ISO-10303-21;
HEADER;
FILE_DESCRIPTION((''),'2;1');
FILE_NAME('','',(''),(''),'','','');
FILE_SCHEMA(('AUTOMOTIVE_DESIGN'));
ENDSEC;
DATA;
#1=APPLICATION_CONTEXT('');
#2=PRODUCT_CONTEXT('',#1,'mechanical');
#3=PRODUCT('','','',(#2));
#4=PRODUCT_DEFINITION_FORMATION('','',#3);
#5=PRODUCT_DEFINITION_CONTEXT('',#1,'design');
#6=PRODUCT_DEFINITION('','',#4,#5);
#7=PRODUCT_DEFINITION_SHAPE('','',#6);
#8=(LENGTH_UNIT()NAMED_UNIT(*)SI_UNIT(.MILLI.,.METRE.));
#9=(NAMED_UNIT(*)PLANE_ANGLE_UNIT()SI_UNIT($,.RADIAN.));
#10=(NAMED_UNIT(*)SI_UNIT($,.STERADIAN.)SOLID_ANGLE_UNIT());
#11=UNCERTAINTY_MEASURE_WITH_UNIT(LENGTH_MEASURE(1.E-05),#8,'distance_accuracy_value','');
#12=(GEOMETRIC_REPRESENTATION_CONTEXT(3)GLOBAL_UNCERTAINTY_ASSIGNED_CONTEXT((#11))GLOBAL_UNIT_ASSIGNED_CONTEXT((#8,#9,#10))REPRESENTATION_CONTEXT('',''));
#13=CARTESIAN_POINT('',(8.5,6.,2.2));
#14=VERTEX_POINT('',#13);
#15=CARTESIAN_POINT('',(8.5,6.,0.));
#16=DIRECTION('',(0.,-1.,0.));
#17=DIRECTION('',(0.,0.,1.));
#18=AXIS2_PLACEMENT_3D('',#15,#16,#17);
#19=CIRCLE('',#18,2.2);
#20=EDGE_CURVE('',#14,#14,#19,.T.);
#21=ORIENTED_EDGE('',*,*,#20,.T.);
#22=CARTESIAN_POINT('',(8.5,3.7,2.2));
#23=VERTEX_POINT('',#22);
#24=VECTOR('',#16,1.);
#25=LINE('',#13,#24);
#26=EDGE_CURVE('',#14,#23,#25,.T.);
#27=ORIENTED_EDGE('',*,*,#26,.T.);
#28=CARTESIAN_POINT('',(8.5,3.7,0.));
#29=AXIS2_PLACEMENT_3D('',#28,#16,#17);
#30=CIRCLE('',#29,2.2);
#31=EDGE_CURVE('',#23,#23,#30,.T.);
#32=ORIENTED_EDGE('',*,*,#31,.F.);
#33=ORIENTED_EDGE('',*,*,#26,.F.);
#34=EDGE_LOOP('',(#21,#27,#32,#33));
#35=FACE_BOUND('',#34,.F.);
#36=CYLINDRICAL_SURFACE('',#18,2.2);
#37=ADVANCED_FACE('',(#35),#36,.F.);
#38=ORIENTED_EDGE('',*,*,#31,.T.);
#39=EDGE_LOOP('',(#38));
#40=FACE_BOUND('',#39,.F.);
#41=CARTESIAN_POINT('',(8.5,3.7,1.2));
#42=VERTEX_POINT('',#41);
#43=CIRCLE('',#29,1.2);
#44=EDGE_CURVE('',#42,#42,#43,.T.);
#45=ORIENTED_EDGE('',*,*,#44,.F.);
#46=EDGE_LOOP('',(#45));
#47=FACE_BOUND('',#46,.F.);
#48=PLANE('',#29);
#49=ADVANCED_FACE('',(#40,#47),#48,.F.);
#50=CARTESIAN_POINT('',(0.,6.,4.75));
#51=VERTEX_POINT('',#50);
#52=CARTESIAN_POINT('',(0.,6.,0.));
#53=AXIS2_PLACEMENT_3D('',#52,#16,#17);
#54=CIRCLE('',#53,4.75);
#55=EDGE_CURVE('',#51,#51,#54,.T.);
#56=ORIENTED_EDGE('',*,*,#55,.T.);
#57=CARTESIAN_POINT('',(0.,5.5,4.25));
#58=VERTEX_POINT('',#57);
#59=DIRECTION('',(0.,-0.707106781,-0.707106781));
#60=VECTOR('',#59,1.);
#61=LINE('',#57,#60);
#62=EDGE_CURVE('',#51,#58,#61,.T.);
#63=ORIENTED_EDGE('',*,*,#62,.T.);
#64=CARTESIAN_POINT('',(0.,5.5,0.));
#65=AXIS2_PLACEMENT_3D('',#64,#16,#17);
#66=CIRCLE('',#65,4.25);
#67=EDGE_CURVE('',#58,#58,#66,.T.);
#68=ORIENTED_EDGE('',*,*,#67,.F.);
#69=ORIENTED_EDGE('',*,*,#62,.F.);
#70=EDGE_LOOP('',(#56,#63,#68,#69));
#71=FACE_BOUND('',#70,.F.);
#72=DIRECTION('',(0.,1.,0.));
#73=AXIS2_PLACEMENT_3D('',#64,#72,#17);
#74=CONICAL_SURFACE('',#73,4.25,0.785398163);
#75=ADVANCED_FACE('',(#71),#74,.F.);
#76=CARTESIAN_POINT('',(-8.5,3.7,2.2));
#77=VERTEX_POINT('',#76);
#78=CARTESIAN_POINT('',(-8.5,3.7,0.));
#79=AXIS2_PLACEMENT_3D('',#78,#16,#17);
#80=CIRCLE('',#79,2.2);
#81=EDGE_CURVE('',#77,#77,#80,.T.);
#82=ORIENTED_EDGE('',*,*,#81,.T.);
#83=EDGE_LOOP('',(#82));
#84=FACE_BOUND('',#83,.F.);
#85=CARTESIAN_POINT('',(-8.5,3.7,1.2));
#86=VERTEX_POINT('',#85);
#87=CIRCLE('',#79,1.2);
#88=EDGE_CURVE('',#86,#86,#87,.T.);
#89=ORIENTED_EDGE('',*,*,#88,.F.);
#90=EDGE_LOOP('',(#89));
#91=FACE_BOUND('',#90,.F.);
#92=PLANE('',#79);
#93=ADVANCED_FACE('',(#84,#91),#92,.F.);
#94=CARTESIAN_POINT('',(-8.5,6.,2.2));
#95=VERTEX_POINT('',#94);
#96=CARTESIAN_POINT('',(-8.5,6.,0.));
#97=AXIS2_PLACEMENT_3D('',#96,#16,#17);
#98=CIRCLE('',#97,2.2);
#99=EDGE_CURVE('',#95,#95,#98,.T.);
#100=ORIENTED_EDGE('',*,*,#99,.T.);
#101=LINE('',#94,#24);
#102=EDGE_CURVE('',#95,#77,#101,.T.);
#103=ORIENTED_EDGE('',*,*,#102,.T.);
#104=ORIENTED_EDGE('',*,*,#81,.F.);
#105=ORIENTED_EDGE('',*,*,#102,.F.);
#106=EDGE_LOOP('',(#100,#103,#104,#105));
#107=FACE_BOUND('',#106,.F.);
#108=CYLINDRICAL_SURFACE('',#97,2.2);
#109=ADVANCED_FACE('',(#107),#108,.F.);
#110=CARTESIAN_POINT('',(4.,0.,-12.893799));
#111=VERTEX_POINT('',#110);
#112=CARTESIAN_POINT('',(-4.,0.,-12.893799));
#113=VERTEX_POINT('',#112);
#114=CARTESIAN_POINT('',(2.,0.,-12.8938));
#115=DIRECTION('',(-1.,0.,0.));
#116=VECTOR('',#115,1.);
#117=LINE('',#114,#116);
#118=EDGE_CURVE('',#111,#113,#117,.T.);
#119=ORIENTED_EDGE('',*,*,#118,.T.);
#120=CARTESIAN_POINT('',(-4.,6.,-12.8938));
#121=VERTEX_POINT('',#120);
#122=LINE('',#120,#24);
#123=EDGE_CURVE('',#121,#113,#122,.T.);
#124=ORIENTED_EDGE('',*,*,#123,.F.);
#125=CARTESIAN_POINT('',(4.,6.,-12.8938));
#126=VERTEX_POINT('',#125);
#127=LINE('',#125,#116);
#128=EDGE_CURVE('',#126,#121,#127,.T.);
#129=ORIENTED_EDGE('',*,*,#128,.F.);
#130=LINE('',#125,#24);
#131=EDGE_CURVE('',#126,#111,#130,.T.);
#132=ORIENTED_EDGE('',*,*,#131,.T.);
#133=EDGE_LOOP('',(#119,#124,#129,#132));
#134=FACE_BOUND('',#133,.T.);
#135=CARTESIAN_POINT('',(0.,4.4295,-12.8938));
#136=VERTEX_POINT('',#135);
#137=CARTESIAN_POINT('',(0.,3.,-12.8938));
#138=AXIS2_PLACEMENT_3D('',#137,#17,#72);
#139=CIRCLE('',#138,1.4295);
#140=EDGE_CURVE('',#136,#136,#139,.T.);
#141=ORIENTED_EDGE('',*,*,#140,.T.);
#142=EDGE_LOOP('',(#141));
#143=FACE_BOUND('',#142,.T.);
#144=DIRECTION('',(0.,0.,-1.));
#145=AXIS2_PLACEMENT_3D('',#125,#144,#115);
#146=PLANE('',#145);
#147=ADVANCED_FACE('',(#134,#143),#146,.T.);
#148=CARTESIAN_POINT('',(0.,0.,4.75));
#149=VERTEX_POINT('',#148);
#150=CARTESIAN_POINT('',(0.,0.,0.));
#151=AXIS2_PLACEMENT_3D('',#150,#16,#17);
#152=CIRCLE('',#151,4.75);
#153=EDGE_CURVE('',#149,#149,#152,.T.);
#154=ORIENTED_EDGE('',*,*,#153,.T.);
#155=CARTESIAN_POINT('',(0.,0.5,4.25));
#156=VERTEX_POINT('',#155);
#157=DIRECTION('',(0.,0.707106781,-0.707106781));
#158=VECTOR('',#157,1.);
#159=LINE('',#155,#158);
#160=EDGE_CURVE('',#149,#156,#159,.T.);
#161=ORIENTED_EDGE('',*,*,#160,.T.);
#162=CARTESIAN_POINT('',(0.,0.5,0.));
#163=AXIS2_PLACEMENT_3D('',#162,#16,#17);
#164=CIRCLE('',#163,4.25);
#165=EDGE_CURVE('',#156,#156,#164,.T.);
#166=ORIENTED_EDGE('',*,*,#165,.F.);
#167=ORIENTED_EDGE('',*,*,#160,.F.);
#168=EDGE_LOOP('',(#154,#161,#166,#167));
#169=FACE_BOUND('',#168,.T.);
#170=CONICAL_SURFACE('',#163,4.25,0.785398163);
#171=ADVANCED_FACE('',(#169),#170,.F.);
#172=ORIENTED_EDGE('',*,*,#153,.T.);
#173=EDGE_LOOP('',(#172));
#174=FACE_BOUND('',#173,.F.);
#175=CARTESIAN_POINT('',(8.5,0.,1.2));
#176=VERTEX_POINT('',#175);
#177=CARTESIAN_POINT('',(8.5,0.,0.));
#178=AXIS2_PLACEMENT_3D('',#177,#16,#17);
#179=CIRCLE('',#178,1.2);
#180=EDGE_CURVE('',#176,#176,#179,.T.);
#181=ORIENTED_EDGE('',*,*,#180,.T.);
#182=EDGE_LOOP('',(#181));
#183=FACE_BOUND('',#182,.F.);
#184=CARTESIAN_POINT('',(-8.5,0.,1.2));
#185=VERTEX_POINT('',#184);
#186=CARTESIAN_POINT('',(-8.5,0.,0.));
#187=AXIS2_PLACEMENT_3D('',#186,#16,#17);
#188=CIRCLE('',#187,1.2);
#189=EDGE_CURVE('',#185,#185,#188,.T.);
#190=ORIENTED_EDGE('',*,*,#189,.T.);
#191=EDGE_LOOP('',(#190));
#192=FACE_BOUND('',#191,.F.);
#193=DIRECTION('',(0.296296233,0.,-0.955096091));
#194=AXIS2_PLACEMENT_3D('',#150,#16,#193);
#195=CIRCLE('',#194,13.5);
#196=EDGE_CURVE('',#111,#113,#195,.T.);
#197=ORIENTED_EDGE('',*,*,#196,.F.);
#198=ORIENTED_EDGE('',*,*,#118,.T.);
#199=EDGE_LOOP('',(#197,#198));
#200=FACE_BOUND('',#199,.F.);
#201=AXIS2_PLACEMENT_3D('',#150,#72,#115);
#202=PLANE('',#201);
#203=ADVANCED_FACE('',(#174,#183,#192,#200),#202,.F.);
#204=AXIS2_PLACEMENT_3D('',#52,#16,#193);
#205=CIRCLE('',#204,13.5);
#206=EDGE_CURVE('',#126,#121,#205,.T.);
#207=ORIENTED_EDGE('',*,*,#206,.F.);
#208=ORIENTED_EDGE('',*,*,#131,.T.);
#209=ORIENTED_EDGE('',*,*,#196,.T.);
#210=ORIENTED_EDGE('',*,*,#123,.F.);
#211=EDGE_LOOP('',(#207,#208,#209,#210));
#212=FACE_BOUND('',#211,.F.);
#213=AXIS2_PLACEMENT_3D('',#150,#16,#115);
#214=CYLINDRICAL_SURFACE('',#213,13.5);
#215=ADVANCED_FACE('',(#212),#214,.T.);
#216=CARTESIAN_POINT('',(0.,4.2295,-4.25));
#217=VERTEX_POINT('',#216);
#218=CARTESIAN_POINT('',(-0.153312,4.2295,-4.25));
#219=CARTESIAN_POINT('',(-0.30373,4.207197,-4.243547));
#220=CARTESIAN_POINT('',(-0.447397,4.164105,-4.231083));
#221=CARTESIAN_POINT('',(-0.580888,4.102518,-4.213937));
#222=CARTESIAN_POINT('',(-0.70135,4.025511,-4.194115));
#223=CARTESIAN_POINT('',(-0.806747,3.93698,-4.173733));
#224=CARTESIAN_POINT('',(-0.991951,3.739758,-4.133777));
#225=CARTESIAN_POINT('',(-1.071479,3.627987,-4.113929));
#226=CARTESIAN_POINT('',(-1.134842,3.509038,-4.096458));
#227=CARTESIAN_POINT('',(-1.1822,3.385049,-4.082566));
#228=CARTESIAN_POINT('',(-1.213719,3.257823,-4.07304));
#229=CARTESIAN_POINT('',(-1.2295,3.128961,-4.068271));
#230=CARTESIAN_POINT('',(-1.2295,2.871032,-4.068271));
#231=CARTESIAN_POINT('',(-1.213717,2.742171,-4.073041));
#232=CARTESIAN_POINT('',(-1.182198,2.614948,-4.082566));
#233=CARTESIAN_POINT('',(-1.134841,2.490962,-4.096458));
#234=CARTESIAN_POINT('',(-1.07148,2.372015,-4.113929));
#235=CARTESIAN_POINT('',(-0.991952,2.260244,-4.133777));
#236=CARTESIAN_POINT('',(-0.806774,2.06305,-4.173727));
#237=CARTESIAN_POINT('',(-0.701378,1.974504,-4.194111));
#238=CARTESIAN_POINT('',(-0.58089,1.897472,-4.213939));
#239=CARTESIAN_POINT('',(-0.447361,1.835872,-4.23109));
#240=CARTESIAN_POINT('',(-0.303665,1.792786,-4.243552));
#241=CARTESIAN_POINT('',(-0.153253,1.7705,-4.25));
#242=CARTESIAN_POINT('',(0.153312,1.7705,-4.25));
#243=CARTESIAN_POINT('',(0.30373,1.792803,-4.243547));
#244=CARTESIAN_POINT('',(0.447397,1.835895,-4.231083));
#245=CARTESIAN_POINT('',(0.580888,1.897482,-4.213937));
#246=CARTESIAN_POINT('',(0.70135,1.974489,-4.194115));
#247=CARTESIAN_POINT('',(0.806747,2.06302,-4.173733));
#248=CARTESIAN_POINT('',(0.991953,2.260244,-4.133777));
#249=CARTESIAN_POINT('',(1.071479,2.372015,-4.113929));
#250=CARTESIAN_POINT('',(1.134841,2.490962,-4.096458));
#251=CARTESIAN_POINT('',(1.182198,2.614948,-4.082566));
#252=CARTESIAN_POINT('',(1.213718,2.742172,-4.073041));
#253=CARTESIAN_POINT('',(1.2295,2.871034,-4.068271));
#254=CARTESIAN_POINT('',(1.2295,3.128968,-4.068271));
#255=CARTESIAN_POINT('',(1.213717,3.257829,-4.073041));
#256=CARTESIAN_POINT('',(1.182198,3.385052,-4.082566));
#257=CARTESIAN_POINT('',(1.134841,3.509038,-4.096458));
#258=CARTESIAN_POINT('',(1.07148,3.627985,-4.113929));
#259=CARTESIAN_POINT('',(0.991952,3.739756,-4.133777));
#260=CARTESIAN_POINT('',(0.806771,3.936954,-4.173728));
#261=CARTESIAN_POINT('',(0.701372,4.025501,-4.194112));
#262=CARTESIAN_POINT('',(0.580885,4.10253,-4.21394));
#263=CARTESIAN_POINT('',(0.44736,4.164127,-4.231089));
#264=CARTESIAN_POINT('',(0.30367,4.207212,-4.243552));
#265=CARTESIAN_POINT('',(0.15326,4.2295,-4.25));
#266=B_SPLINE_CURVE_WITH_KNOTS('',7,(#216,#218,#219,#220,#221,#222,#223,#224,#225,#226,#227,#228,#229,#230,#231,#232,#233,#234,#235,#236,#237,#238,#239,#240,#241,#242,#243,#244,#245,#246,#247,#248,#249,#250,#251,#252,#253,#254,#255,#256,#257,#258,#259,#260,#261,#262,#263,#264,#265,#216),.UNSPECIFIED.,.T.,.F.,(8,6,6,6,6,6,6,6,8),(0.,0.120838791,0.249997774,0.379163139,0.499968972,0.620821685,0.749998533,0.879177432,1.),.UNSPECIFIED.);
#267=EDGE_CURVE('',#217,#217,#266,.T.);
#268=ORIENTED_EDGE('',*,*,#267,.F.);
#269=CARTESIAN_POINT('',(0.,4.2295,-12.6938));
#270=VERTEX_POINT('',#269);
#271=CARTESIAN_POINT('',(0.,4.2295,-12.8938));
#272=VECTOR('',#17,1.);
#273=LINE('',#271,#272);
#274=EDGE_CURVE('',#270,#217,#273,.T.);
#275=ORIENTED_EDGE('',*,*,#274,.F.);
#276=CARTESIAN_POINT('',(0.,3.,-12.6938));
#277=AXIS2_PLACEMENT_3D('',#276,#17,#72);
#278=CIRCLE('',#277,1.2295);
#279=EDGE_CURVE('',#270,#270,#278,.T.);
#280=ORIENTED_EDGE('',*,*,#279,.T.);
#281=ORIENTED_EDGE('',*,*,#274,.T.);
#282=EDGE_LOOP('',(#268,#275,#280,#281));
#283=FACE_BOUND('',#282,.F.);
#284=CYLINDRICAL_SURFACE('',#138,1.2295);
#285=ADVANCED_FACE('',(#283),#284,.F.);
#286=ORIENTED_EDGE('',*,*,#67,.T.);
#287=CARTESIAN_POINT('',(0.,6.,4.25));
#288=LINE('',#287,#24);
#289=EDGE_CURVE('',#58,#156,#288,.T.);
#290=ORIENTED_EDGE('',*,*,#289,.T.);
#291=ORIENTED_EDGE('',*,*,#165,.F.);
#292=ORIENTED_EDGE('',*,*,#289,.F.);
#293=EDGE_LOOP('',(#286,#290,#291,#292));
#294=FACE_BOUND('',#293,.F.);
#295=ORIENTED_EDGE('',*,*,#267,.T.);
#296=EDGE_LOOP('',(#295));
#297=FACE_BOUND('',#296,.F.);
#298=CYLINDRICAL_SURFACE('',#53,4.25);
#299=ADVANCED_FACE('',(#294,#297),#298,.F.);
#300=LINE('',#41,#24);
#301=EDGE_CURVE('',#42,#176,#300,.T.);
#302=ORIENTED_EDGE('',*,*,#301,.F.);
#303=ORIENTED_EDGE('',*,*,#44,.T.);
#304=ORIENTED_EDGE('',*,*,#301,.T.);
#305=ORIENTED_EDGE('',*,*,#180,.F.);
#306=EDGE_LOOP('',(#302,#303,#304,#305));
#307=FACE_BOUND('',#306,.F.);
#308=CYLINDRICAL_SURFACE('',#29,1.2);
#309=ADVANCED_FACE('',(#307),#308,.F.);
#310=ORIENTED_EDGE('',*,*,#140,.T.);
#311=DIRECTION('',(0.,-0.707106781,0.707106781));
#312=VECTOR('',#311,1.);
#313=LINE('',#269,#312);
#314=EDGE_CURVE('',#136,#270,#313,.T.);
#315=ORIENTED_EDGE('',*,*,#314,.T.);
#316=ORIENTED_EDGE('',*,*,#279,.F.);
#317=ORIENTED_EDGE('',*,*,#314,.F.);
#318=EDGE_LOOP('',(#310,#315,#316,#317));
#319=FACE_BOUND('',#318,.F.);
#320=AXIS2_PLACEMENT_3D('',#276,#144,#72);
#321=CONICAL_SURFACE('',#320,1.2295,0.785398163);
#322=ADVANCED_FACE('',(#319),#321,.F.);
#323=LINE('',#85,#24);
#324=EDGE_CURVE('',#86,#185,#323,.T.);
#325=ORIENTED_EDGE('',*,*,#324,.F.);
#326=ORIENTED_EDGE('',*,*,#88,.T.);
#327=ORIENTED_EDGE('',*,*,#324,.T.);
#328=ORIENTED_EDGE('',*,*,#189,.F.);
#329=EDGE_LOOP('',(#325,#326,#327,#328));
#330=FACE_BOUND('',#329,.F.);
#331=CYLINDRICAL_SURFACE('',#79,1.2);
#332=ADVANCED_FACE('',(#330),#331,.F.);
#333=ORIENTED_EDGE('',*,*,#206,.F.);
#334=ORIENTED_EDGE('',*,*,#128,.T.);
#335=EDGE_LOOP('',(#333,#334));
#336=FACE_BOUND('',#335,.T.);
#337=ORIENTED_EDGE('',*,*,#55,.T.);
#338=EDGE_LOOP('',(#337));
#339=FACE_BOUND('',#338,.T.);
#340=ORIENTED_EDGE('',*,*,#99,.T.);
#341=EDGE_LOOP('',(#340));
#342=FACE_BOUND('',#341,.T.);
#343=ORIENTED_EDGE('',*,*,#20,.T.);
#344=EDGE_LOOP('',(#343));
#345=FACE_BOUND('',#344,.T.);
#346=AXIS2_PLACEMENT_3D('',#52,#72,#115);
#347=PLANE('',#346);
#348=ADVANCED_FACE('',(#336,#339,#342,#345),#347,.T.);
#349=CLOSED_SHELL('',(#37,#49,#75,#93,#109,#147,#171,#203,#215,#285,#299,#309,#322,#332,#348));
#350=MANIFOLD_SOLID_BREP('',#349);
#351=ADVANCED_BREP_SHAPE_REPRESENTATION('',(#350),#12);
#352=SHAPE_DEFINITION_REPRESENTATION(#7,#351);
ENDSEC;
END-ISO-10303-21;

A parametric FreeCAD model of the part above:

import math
import FreeCAD as App
import Part
import Sketcher

V = App.Vector


def edges_at(feature, points):
    """Names of the edges that pass closest to the given points."""
    edges = feature.Shape.Edges
    near = lambda p: min(range(len(edges)), key=lambda i: edges[i].distToShape(Part.Vertex(*p))[0])
    return sorted({f"Edge{near(p) + 1}" for p in points})

doc = App.newDocument("Part")
body = doc.addObject("PartDesign::Body", "Body")

# Sketch on XZ plane
sketch1 = body.newObject("Sketcher::SketchObject", "Sketch")
sketch1.AttachmentSupport = (doc.getObject("XZ_Plane"), [""])
sketch1.MapMode = "FlatFace"
sketch1.addGeometry(Part.Circle(V(0, 0, 0), V(0, 0, 1), 13.5), False)
sketch1.addConstraint([
    Sketcher.Constraint("Coincident", 0, 3, -1, 1),
    Sketcher.Constraint("Diameter", 0, 27.0),
])
pad1 = body.newObject("PartDesign::Pad", "Pad")
pad1.Profile = sketch1
pad1.Length = 6
pad1.Reversed = True

# Sketch on XZ plane
sketch2 = body.newObject("Sketcher::SketchObject", "Sketch001")
sketch2.AttachmentSupport = (doc.getObject("XZ_Plane"), [""])
sketch2.MapMode = "FlatFace"
sketch2.AttachmentOffset = App.Placement(V(0, 0, -6), App.Rotation())
sketch2.addGeometry(Part.Circle(V(0, 0, 0), V(0, 0, 1), 4.25), False)
sketch2.addConstraint([
    Sketcher.Constraint("Coincident", 0, 3, -1, 1),
    Sketcher.Constraint("Diameter", 0, 8.5),
])
doc.recompute()
hole = body.newObject("PartDesign::Hole", "Hole")
hole.Profile = sketch2
hole.ThreadType = "None"
hole.Diameter = 8.5
hole.DepthType = "ThroughAll"
hole.Reversed = True

# Sketch on XZ plane
sketch3 = body.newObject("Sketcher::SketchObject", "Sketch002")
sketch3.AttachmentSupport = (doc.getObject("XZ_Plane"), [""])
sketch3.MapMode = "FlatFace"
sketch3.AttachmentOffset = App.Placement(V(0, 0, -6), App.Rotation())
sketch3.addGeometry([
    Part.Circle(V(-8.5, 0, 0), V(0, 0, 1), 1.2),
    Part.Circle(V(8.5, 0, 0), V(0, 0, 1), 1.2),
], False)
sketch3.addConstraint([
    Sketcher.Constraint("Equal", 0, 1),
    Sketcher.Constraint("Symmetric", 0, 3, 1, 3, -1, 1),
    Sketcher.Constraint("PointOnObject", 0, 3, -1),
    Sketcher.Constraint("Diameter", 0, 2.4),
    Sketcher.Constraint("DistanceX", 0, 3, 1, 3, 17.0),
])
doc.recompute()
hole2 = body.newObject("PartDesign::Hole", "Hole001")
hole2.Profile = sketch3
hole2.ThreadType = "None"
hole2.Diameter = 2.4
hole2.DepthType = "ThroughAll"
hole2.HoleCutType = "Counterbore"
hole2.HoleCutDiameter = 4.4
hole2.HoleCutDepth = 2.3
hole2.Reversed = True
doc.recompute()

chamfer = body.newObject("PartDesign::Chamfer", "Chamfer")
chamfer.Base = (hole2, edges_at(hole2, [(0, 0, -4.25), (0, 6, -4.25)]))
chamfer.Size = 0.5

# Sketch on XZ plane
sketch4 = body.newObject("Sketcher::SketchObject", "Sketch003")
sketch4.AttachmentSupport = (doc.getObject("XZ_Plane"), [""])
sketch4.MapMode = "FlatFace"
sketch4.AttachmentOffset = App.Placement(V(0, 0, -6), App.Rotation())
sketch4.addGeometry([
    Part.LineSegment(V(-4, -12.8938, 0), V(4, -12.8938, 0)),
    Part.ArcOfCircle(Part.Circle(V(0, 0, 0), V(0, 0, 1), 13.500003), math.radians(-107.235281), math.radians(-72.764719)),
], False)
sketch4.addConstraint([
    Sketcher.Constraint("Coincident", 0, 1, 1, 1),
    Sketcher.Constraint("Coincident", 1, 2, 0, 2),
    Sketcher.Constraint("Horizontal", 0),
    Sketcher.Constraint("Coincident", 1, 3, -1, 1),
    Sketcher.Constraint("DistanceX", 0, 1, 0, 2, 8.0),
    Sketcher.Constraint("Radius", 1, 13.5),
])
pocket1 = body.newObject("PartDesign::Pocket", "Pocket")
pocket1.Profile = sketch4
pocket1.Type = "ThroughAll"
pocket1.Reversed = True

# Sketch on XY plane
sketch5 = body.newObject("Sketcher::SketchObject", "Sketch004")
sketch5.AttachmentSupport = (doc.getObject("XY_Plane"), [""])
sketch5.MapMode = "FlatFace"
sketch5.AttachmentOffset = App.Placement(V(0, 0, -12.8938), App.Rotation())
sketch5.addGeometry(Part.Circle(V(0, 3, 0), V(0, 0, 1), 1.2295), False)
sketch5.addConstraint([
    Sketcher.Constraint("PointOnObject", 0, 3, -2),
    Sketcher.Constraint("Diameter", 0, 2.459),
    Sketcher.Constraint("DistanceY", -1, 1, 0, 3, 3.0),
])
doc.recompute()
hole3 = body.newObject("PartDesign::Hole", "Hole002")
hole3.Profile = sketch5
hole3.ThreadType = "None"
hole3.Diameter = 2.459
hole3.DepthType = "Dimension"
hole3.Depth = 10
hole3.DrillPoint = "Angled"
hole3.DrillPointAngle = 118
hole3.Reversed = True
doc.recompute()

chamfer2 = body.newObject("PartDesign::Chamfer", "Chamfer001")
chamfer2.Base = (hole3, edges_at(hole3, [(0, 1.77, -12.894)]))
chamfer2.Size = 0.2

doc.recompute()
